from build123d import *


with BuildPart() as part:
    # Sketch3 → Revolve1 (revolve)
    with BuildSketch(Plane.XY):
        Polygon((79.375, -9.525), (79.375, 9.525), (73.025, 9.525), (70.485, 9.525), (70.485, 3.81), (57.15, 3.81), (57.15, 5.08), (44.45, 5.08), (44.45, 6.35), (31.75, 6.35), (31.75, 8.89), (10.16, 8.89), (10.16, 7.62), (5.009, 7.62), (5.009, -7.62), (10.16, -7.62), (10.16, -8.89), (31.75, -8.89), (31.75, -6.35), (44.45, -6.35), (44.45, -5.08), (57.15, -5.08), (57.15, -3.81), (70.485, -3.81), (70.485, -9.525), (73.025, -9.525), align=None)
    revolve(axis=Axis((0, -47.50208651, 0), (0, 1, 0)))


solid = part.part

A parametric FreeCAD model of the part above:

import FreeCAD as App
import Part
import Sketcher
Q = App.Units.Quantity


def add_polygon(sketch, points):
    """Adds a closed chain of lines whose ends are joined by coincident constraints."""
    first, n = sketch.GeometryCount, len(points)
    for a, b in zip(points, points[1:] + points[:1]):
        sketch.addGeometry(Part.LineSegment(App.Vector(*a, 0), App.Vector(*b, 0)), False)
    for i in range(n):
        sketch.addConstraint(Sketcher.Constraint("Coincident", first + i, 2, first + (i + 1) % n, 1))

doc = App.newDocument("Part")
body = doc.addObject("PartDesign::Body", "Body")

# Sketch on XY plane
sketch1 = body.newObject("Sketcher::SketchObject", "Sketch")
sketch1.AttachmentSupport = (doc.getObject("XY_Plane"), [""])
sketch1.MapMode = "FlatFace"
add_polygon(sketch1, [(79.4, -9.5), (79.4, 9.5), (70.5, 9.5), (70.5, 3.8), (57.1, 3.8), (57.1, 5.1), (44.5, 5.1), (44.5, 6.3), (31.8, 6.3), (31.8, 8.9), (10.2, 8.9), (10.2, 7.6), (5, 7.6), (5, -7.6), (10.2, -7.6), (10.2, -8.9), (31.8, -8.9), (31.8, -6.3), (44.5, -6.3), (44.5, -5.1), (57.1, -5.1), (57.1, -3.8), (70.5, -3.8), (70.5, -9.5)])  # lines 0-23
sketch1.addConstraint(Sketcher.Constraint("Vertical", 0))
sketch1.addConstraint(Sketcher.Constraint("Horizontal", 1))
sketch1.addConstraint(Sketcher.Constraint("Vertical", 2))
sketch1.addConstraint(Sketcher.Constraint("Horizontal", 3))
sketch1.addConstraint(Sketcher.Constraint("Vertical", 4))
sketch1.addConstraint(Sketcher.Constraint("Horizontal", 5))
sketch1.addConstraint(Sketcher.Constraint("Vertical", 6))
sketch1.addConstraint(Sketcher.Constraint("Horizontal", 7))
sketch1.addConstraint(Sketcher.Constraint("Vertical", 8))
sketch1.addConstraint(Sketcher.Constraint("Horizontal", 9))
sketch1.addConstraint(Sketcher.Constraint("Vertical", 10))
sketch1.addConstraint(Sketcher.Constraint("Horizontal", 11))
sketch1.addConstraint(Sketcher.Constraint("Vertical", 12))
sketch1.addConstraint(Sketcher.Constraint("Horizontal", 13))
sketch1.addConstraint(Sketcher.Constraint("Vertical", 14))
sketch1.addConstraint(Sketcher.Constraint("Horizontal", 15))
sketch1.addConstraint(Sketcher.Constraint("Vertical", 16))
sketch1.addConstraint(Sketcher.Constraint("Horizontal", 17))
sketch1.addConstraint(Sketcher.Constraint("Vertical", 18))
sketch1.addConstraint(Sketcher.Constraint("Horizontal", 19))
sketch1.addConstraint(Sketcher.Constraint("Vertical", 20))
sketch1.addConstraint(Sketcher.Constraint("Horizontal", 21))
sketch1.addConstraint(Sketcher.Constraint("Vertical", 22))
sketch1.addConstraint(Sketcher.Constraint("Horizontal", 23))
sketch1.addConstraint(Sketcher.Constraint("Symmetric", 10, 2, 13, 2, -1))
sketch1.addConstraint(Sketcher.Constraint("Symmetric", 8, 2, 15, 2, -1))
sketch1.addConstraint(Sketcher.Constraint("Symmetric", 6, 2, 17, 2, -1))
sketch1.addConstraint(Sketcher.Constraint("Symmetric", 4, 2, 19, 2, -1))
sketch1.addConstraint(Sketcher.Constraint("Symmetric", 2, 2, 21, 2, -1))
sketch1.addConstraint(Sketcher.Constraint("Equal", 5, 7))
sketch1.addConstraint(Sketcher.Constraint("Equal", 4, 6))
sketch1.addConstraint(Sketcher.Constraint("Equal", 6, 10))
sketch1.addConstraint(Sketcher.Constraint("Equal", 2, 22))
sketch1.addConstraint(Sketcher.Constraint("DistanceX", 5, 2, 5, 1, Q("0.5 in")))
sketch1.addConstraint(Sketcher.Constraint("DistanceY", 8, 1, 8, 2, Q("0.1 in")))
sketch1.addConstraint(Sketcher.Constraint("DistanceY", 12, 2, 12, 1, Q("0.6 in")))
sketch1.addConstraint(Sketcher.Constraint("DistanceX", 1, 2, 1, 1, Q("0.35 in")))
sketch1.addConstraint(Sketcher.Constraint("DistanceX", 9, 2, 9, 1, Q("0.85 in")))
sketch1.addConstraint(Sketcher.Constraint("DistanceY", 0, 1, 0, 2, Q("0.75 in")))
sketch1.addConstraint(Sketcher.Constraint("DistanceY", 4, 1, 4, 2, Q("0.05 in")))
sketch1.addConstraint(Sketcher.Constraint("DistanceX", -1, 1, 9, 2, Q("0.4 in")))
sketch1.addConstraint(Sketcher.Constraint("DistanceX", 3, 2, 3, 1, Q("0.525 in")))
sketch1.addConstraint(Sketcher.Constraint("DistanceX", 11, 2, 11, 1, 5.151))
revolution = body.newObject("PartDesign::Revolution", "Revolution")
revolution.Profile = sketch1
revolution.ReferenceAxis = (sketch1, ["V_Axis"])
revolution.Angle = 360

doc.recompute()
